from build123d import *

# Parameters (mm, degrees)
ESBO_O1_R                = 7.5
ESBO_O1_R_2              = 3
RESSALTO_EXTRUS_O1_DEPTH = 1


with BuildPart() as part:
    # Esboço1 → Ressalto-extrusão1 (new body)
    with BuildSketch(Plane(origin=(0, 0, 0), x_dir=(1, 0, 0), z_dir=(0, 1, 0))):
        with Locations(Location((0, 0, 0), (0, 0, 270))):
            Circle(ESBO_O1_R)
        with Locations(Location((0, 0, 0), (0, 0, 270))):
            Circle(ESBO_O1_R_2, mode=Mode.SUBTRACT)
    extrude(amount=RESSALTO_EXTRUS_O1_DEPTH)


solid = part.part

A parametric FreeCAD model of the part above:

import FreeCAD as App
import Part
import Sketcher

V = App.Vector
Q = App.Units.Quantity

doc = App.newDocument("Part")
body = doc.addObject("PartDesign::Body", "Body")

# Sketch on XZ plane
sketch1 = body.newObject("Sketcher::SketchObject", "Sketch")
sketch1.AttachmentSupport = (doc.getObject("XZ_Plane"), [""])
sketch1.MapMode = "FlatFace"
sketch1.addGeometry(Part.Circle(V(0, 0, 0), V(0, 0, 1), 7.5), False)
sketch1.addGeometry(Part.Circle(V(0, 0, 0), V(0, 0, 1), 3), False)
sketch1.addConstraint(Sketcher.Constraint("Coincident", 0, 3, -1, 1))
sketch1.addConstraint(Sketcher.Constraint("Coincident", 1, 3, -1, 1))
sketch1.addConstraint(Sketcher.Constraint("Diameter", 0, Q("15 mm")))
sketch1.addConstraint(Sketcher.Constraint("Diameter", 1, Q("6 mm")))
pad1 = body.newObject("PartDesign::Pad", "Pad")
pad1.Profile = sketch1
pad1.Length = 1
pad1.Reversed = True

doc.recompute()
